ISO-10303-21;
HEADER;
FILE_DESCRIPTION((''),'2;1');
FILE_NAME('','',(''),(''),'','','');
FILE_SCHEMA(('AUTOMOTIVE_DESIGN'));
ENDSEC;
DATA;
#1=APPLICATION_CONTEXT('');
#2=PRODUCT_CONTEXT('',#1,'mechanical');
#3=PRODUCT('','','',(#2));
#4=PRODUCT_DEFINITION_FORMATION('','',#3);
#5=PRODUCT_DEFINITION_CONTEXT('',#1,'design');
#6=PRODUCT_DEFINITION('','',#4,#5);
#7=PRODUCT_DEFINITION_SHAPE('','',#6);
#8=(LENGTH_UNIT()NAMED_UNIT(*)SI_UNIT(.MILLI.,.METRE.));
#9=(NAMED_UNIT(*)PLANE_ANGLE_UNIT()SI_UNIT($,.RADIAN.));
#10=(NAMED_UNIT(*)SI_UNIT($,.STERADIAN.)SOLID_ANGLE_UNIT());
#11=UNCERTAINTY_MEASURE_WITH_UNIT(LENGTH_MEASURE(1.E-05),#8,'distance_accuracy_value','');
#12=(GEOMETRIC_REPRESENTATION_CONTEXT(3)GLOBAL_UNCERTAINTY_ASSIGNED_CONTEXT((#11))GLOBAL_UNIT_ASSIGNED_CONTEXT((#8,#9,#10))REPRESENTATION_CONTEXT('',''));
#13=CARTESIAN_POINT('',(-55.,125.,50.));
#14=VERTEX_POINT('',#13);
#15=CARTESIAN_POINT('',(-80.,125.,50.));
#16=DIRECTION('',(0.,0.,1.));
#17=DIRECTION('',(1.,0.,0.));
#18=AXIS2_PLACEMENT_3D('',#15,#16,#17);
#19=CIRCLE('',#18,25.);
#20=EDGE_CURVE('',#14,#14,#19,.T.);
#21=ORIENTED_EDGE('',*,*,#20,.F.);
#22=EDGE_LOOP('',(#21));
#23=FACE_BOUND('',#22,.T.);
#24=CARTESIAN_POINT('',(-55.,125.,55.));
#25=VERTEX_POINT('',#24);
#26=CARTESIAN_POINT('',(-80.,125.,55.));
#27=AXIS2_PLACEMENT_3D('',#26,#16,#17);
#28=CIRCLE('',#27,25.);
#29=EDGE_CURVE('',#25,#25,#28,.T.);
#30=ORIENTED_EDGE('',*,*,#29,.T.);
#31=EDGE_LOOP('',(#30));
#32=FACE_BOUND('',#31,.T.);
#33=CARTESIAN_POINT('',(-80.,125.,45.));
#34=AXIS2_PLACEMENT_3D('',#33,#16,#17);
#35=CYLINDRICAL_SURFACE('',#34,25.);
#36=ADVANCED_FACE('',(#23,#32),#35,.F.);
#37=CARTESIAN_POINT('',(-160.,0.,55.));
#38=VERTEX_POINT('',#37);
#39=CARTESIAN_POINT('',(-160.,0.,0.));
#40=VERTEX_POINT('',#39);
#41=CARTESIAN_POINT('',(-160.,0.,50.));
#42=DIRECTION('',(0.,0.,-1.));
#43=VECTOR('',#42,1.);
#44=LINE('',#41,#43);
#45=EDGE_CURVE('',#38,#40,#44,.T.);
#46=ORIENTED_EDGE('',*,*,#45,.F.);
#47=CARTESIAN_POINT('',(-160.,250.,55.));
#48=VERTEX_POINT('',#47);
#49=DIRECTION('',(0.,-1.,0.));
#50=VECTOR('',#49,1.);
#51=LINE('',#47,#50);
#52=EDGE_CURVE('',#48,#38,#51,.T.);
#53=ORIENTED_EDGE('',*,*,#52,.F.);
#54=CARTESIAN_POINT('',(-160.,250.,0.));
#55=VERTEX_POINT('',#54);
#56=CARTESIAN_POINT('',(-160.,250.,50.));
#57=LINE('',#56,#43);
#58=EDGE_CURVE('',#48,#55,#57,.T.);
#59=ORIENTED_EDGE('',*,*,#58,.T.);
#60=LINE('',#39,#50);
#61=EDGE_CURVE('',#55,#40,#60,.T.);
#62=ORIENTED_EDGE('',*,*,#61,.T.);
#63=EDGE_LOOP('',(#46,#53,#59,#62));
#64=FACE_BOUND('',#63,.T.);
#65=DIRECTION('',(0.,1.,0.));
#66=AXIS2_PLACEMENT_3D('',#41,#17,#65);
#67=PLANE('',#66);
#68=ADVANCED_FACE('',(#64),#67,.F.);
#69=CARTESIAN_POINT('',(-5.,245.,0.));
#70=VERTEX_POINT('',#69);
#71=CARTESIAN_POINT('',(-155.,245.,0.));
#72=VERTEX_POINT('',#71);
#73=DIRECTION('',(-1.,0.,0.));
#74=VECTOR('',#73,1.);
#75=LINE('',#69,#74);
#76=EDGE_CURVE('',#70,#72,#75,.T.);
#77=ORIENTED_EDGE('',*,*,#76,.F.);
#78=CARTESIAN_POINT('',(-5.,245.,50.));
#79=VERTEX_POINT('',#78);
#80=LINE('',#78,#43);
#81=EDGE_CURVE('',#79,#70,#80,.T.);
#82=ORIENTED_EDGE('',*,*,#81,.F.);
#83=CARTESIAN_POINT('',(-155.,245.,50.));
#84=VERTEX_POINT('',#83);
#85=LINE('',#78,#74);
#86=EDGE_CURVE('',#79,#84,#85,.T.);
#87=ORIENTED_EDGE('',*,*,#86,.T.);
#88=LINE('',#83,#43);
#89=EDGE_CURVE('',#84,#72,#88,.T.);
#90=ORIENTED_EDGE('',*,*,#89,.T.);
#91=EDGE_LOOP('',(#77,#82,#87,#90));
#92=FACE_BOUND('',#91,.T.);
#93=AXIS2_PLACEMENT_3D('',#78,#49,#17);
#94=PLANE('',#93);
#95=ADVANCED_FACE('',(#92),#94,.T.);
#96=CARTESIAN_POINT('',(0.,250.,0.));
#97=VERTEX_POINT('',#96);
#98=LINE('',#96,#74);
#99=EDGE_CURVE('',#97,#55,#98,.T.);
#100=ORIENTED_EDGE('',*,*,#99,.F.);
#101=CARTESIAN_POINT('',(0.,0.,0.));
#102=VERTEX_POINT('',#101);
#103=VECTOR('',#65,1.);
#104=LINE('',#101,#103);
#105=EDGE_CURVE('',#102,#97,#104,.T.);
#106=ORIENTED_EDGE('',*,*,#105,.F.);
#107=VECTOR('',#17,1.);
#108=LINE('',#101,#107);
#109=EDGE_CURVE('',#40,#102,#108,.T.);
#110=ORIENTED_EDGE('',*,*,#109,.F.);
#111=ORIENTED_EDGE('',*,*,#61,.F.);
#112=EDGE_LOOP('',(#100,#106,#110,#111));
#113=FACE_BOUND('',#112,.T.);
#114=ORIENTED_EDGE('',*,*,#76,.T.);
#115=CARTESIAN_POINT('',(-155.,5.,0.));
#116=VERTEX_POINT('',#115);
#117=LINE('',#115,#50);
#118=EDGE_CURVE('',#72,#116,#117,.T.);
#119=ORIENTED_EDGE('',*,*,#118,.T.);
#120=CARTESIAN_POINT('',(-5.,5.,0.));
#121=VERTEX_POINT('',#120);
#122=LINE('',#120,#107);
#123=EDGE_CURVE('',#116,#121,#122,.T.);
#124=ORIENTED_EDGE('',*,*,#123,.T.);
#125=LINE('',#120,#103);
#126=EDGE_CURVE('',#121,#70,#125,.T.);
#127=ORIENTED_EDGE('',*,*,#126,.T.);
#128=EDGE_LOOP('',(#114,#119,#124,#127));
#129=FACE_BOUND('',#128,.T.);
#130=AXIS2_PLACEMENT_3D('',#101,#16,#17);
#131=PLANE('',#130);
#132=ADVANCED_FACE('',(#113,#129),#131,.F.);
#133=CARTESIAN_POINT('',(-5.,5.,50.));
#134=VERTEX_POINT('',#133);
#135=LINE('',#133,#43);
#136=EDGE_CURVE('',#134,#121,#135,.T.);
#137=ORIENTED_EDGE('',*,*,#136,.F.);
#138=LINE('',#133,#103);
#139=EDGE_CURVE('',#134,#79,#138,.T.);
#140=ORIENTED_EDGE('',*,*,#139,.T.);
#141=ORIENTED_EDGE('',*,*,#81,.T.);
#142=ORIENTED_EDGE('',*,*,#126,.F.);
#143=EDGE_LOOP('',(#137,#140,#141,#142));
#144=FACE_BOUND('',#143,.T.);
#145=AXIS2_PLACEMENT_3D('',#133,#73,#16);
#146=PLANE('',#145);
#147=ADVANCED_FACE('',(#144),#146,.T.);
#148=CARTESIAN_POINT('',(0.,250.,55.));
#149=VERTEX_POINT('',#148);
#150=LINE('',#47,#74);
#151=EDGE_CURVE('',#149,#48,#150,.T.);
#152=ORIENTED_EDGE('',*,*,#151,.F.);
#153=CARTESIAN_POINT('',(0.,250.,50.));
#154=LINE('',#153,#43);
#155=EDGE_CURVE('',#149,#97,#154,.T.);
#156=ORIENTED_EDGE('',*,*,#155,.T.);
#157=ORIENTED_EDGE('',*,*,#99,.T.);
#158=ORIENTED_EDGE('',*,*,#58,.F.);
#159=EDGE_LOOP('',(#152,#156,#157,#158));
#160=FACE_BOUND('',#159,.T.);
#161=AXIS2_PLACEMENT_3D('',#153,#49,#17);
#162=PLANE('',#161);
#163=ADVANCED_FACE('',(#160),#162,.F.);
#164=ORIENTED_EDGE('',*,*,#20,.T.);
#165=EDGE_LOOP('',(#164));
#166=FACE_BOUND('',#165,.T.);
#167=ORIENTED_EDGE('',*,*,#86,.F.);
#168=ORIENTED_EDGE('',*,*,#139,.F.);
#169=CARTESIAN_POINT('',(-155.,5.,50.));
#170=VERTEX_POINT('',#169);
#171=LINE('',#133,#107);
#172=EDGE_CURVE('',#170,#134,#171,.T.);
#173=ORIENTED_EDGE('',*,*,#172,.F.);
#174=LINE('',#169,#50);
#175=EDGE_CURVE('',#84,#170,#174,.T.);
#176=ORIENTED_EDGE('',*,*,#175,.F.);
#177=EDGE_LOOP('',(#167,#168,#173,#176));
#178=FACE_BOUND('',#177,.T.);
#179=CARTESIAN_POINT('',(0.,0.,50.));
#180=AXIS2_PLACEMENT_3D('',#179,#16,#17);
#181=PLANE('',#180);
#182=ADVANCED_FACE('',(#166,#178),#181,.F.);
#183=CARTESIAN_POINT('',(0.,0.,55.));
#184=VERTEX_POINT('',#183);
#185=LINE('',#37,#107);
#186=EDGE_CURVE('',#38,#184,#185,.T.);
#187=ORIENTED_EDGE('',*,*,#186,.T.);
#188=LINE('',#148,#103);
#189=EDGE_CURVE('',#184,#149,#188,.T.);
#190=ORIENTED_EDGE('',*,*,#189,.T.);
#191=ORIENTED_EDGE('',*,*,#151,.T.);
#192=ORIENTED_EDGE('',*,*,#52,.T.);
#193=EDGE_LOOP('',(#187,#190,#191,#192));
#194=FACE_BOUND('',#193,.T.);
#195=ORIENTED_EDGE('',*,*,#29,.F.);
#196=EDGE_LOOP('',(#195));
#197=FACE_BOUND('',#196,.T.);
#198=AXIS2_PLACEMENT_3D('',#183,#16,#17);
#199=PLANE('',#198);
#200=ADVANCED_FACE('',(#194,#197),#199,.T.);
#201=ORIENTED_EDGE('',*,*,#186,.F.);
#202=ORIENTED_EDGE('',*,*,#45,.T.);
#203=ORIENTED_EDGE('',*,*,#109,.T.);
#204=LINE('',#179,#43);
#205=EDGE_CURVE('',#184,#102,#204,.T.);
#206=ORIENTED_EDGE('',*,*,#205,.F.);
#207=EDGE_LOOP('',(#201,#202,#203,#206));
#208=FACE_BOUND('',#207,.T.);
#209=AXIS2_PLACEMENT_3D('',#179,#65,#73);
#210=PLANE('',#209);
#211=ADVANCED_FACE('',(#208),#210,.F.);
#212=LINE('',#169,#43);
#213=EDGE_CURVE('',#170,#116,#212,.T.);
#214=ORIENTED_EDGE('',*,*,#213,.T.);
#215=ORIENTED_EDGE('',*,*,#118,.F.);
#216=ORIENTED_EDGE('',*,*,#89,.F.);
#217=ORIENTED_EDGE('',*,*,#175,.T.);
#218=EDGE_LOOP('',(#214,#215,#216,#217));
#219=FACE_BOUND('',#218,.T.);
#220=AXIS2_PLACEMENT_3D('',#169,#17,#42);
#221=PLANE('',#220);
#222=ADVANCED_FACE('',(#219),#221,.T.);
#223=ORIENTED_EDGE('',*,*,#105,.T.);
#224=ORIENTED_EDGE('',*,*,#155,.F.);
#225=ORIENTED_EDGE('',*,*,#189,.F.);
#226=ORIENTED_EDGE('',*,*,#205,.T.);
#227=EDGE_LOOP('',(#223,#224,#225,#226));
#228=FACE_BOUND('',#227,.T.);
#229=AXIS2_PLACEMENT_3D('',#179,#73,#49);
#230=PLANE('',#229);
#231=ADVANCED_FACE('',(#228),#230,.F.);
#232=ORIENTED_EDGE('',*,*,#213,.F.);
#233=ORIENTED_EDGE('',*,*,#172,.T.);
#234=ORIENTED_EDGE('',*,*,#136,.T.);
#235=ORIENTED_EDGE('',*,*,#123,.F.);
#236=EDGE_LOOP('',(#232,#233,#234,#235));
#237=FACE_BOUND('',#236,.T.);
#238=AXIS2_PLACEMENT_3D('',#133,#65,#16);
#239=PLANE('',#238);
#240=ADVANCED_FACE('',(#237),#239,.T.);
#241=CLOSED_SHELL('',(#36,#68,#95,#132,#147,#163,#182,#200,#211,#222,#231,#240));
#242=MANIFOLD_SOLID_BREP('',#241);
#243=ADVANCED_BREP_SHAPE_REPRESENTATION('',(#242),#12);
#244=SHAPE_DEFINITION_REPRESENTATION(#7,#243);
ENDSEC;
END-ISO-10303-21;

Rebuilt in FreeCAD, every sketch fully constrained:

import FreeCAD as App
import Part
import Sketcher
Q = App.Units.Quantity


def add_polygon(sketch, points):
    """Adds a closed chain of lines whose ends are joined by coincident constraints."""
    first, n = sketch.GeometryCount, len(points)
    for a, b in zip(points, points[1:] + points[:1]):
        sketch.addGeometry(Part.LineSegment(App.Vector(*a, 0), App.Vector(*b, 0)), False)
    for i in range(n):
        sketch.addConstraint(Sketcher.Constraint("Coincident", first + i, 2, first + (i + 1) % n, 1))

doc = App.newDocument("Part")
body = doc.addObject("PartDesign::Body", "Body")

sketch1 = body.newObject("Sketcher::SketchObject", "Sketch")
sketch1.AttachmentSupport = (doc.getObject("XY_Plane"), [""])
sketch1.MapMode = "FlatFace"
add_polygon(sketch1, [(-160, 250), (-160, 0), (0, 0), (0, 250)])
add_polygon(sketch1, [(-5, 5), (-155, 5), (-155, 245), (-5, 245)])
sketch1.addConstraint([
    Sketcher.Constraint("Vertical", 0),
    Sketcher.Constraint("Horizontal", 1),
    Sketcher.Constraint("Vertical", 2),
    Sketcher.Constraint("Horizontal", 3),
    Sketcher.Constraint("Horizontal", 4),
    Sketcher.Constraint("Vertical", 5),
    Sketcher.Constraint("Horizontal", 6),
    Sketcher.Constraint("Vertical", 7),
    Sketcher.Constraint("Coincident", 1, 2, -1, 1),
    Sketcher.Constraint("DistanceX", 1, 1, 1, 2, Q("160 mm")),
    Sketcher.Constraint("DistanceX", 4, 2, 4, 1, Q("150 mm")),
    Sketcher.Constraint("DistanceY", 0, 2, 0, 1, Q("250 mm")),
    Sketcher.Constraint("DistanceY", 5, 1, 5, 2, Q("240 mm")),
    Sketcher.Constraint("DistanceX", 4, 2, -1, 1, Q("155 mm")),
    Sketcher.Constraint("DistanceY", -1, 1, 4, 2, Q("5 mm")),
])
pad1 = body.newObject("PartDesign::Pad", "Pad")
pad1.Profile = sketch1
pad1.Length = 50

sketch2 = body.newObject("Sketcher::SketchObject", "Sketch001")
sketch2.AttachmentSupport = (doc.getObject("XY_Plane"), [""])
sketch2.MapMode = "FlatFace"
sketch2.AttachmentOffset = App.Placement(App.Vector(0, 0, 50), App.Rotation())
add_polygon(sketch2, [(-160, 250), (-160, 0), (0, 0), (0, 250)])
sketch2.addConstraint([
    Sketcher.Constraint("Vertical", 0),
    Sketcher.Constraint("Horizontal", 1),
    Sketcher.Constraint("Vertical", 2),
    Sketcher.Constraint("Horizontal", 3),
    Sketcher.Constraint("Coincident", 1, 2, -1, 1),
    Sketcher.Constraint("DistanceX", 1, 1, 1, 2, Q("160 mm")),
    Sketcher.Constraint("DistanceY", 0, 2, 0, 1, Q("250 mm")),
])
pad2 = body.newObject("PartDesign::Pad", "Pad001")
pad2.Profile = sketch2
pad2.Length = 5

sketch3 = body.newObject("Sketcher::SketchObject", "Sketch002")
sketch3.AttachmentSupport = (doc.getObject("XY_Plane"), [""])
sketch3.MapMode = "FlatFace"
sketch3.AttachmentOffset = App.Placement(App.Vector(0, 0, 55), App.Rotation())
sketch3.addGeometry(Part.Circle(App.Vector(-80, 125, 0), App.Vector(0, 0, 1), 25), False)
sketch3.addConstraint([
    Sketcher.Constraint("Diameter", 0, Q("50 mm")),
    Sketcher.Constraint("DistanceX", 0, 3, -1, 1, Q("80 mm")),
    Sketcher.Constraint("DistanceY", -1, 1, 0, 3, Q("125 mm")),
])
pocket1 = body.newObject("PartDesign::Pocket", "Pocket")
pocket1.Profile = sketch3
pocket1.Length = 10

doc.recompute()
